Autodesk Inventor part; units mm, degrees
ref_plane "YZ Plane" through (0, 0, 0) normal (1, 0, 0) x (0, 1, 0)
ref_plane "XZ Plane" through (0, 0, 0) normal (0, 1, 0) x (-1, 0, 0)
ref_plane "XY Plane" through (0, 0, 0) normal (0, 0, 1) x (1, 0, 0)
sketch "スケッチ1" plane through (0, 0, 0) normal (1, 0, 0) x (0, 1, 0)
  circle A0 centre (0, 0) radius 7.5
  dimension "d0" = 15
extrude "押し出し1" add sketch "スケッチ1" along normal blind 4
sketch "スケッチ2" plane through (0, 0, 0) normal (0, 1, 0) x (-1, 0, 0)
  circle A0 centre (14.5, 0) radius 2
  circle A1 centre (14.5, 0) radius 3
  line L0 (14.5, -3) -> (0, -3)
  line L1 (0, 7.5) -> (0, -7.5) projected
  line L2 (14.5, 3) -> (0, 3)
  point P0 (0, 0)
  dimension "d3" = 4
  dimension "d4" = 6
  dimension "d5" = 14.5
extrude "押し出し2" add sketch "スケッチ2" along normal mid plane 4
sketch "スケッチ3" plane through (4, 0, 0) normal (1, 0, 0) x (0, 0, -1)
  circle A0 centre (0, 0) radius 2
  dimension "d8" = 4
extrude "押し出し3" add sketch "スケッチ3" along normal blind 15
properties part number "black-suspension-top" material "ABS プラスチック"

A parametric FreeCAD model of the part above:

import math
import FreeCAD as App
import Part
import Sketcher

V = App.Vector
Q = App.Units.Quantity

doc = App.newDocument("Part")
body = doc.addObject("PartDesign::Body", "Body")

# Sketch on YZ plane
sketch1 = body.newObject("Sketcher::SketchObject", "Sketch")
sketch1.AttachmentSupport = (doc.getObject("YZ_Plane"), [""])
sketch1.MapMode = "FlatFace"
sketch1.addGeometry(Part.Circle(V(0, 0, 0), V(0, 0, 1), 8), False)
sketch1.addConstraint([
    Sketcher.Constraint("Coincident", 0, 3, -1, 1),
    Sketcher.Constraint("Diameter", 0, Q("15 mm")),
])
pad1 = body.newObject("PartDesign::Pad", "Pad")
pad1.Profile = sketch1
pad1.Length = 4

# Sketch on XZ plane
sketch2 = body.newObject("Sketcher::SketchObject", "Sketch001")
sketch2.AttachmentSupport = (doc.getObject("XZ_Plane"), [""])
sketch2.MapMode = "FlatFace"
sketch2.addGeometry([
    Part.ArcOfCircle(Part.Circle(V(-14.5, 0, 0), V(0, 0, 1), 3), math.radians(90), math.radians(270)),  # 0
    Part.LineSegment(V(-14.5, 3, 0), V(0, 3, 0)),  # 1
    Part.LineSegment(V(0, 3, 0), V(0, -3, 0)),  # 2
    Part.LineSegment(V(0, -3, 0), V(-14.5, -3, 0)),  # 3
    Part.Circle(V(-14.5, 0, 0), V(0, 0, 1), 2),  # 4
], False)
sketch2.addConstraint([
    Sketcher.Constraint("Tangent", 0, 1, 1, 1),
    Sketcher.Constraint("Coincident", 1, 2, 2, 1),
    Sketcher.Constraint("Coincident", 2, 2, 3, 1),
    Sketcher.Constraint("Tangent", 3, 2, 0, 2),
    Sketcher.Constraint("Horizontal", 1),
    Sketcher.Constraint("Vertical", 2),
    Sketcher.Constraint("Horizontal", 3),
    Sketcher.Constraint("Coincident", 4, 3, 0, 3),
    Sketcher.Constraint("Symmetric", 1, 2, 2, 2, -1, 1),
    Sketcher.Constraint("Diameter", 4, Q("4 mm")),
    Sketcher.Constraint("Radius", 0, Q("3 mm")),
    Sketcher.Constraint("DistanceX", 1, 1, 1, 2, Q("14.5 mm")),
])
pad2 = body.newObject("PartDesign::Pad", "Pad001")
pad2.Profile = sketch2
pad2.Length = 4
pad2.Midplane = True

# Sketch on YZ plane
sketch3 = body.newObject("Sketcher::SketchObject", "Sketch002")
sketch3.AttachmentSupport = (doc.getObject("YZ_Plane"), [""])
sketch3.MapMode = "FlatFace"
sketch3.AttachmentOffset = App.Placement(V(0, 0, 4), App.Rotation())
sketch3.addGeometry(Part.Circle(V(0, 0, 0), V(0, 0, 1), 2), False)
sketch3.addConstraint([
    Sketcher.Constraint("Coincident", 0, 3, -1, 1),
    Sketcher.Constraint("Diameter", 0, Q("4 mm")),
])
pad3 = body.newObject("PartDesign::Pad", "Pad002")
pad3.Profile = sketch3
pad3.Length = 15

doc.recompute()
